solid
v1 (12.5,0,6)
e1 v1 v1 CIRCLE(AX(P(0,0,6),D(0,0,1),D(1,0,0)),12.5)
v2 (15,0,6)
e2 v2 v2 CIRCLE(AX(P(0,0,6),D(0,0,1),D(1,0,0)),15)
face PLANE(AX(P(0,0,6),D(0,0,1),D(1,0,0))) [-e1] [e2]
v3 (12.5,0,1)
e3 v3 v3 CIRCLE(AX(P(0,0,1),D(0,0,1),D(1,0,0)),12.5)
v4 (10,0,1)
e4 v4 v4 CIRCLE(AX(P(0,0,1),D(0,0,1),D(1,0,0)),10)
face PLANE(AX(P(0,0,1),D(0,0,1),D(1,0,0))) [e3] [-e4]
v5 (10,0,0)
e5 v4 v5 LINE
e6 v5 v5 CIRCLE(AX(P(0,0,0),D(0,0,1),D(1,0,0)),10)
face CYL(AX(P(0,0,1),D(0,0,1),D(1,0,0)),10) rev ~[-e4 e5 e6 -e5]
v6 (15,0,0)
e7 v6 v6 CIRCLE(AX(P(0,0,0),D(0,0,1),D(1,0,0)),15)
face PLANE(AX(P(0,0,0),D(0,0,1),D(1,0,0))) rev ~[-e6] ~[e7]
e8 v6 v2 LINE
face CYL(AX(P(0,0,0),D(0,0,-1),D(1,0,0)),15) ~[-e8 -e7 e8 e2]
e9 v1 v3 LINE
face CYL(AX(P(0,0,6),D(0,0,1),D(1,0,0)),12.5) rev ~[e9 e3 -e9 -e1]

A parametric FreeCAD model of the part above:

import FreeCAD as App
import Part
import Sketcher

V = App.Vector

doc = App.newDocument("Part")
params = doc.addObject("Spreadsheet::Sheet", "Params")
for row, (alias, value) in enumerate([
    ("sketch1_diameter", "30 mm"),
    ("pad1_length", "6 mm"),
    ("sketch2_diameter", "25 mm"),
    ("pocket1_length", "5 mm"),
    ("sketch3_diameter", "20 mm"),
], start=1):
    params.set(f"A{row}", alias)
    params.set(f"B{row}", "=" + value)
    params.setAlias(f"B{row}", alias)

body = doc.addObject("PartDesign::Body", "Body")

# Sketch on XY plane
sketch1 = body.newObject("Sketcher::SketchObject", "Sketch")
sketch1.AttachmentSupport = (doc.getObject("XY_Plane"), [""])
sketch1.MapMode = "FlatFace"
sketch1.addGeometry(Part.Circle(V(0, 0, 0), V(0, 0, 1), 15), False)
sketch1.addConstraint([
    Sketcher.Constraint("Coincident", 0, 3, -1, 1),
    Sketcher.Constraint("Diameter", 0, 30.0),
])
sketch1.setExpression("Constraints[1]", "Params.sketch1_diameter")
pad1 = body.newObject("PartDesign::Pad", "Pad")
pad1.Profile = sketch1
pad1.setExpression("Length", "Params.pad1_length")

# Sketch on XY plane
sketch2 = body.newObject("Sketcher::SketchObject", "Sketch001")
sketch2.AttachmentSupport = (doc.getObject("XY_Plane"), [""])
sketch2.MapMode = "FlatFace"
sketch2.AttachmentOffset = App.Placement(V(0, 0, 6), App.Rotation())
sketch2.addGeometry(Part.Circle(V(0, 0, 0), V(0, 0, 1), 12.5), False)
sketch2.addConstraint([
    Sketcher.Constraint("Coincident", 0, 3, -1, 1),
    Sketcher.Constraint("Diameter", 0, 25.0),
])
sketch2.setExpression("Constraints[1]", "Params.sketch2_diameter")
pocket1 = body.newObject("PartDesign::Pocket", "Pocket")
pocket1.Profile = sketch2
pocket1.setExpression("Length", "Params.pocket1_length")

# Sketch on XY plane
sketch3 = body.newObject("Sketcher::SketchObject", "Sketch002")
sketch3.AttachmentSupport = (doc.getObject("XY_Plane"), [""])
sketch3.MapMode = "FlatFace"
sketch3.AttachmentOffset = App.Placement(V(0, 0, 1), App.Rotation())
sketch3.addGeometry(Part.Circle(V(0, 0, 0), V(0, 0, 1), 10), False)
sketch3.addConstraint([
    Sketcher.Constraint("Coincident", 0, 3, -1, 1),
    Sketcher.Constraint("Diameter", 0, 20.0),
])
sketch3.setExpression("Constraints[1]", "Params.sketch3_diameter")
pocket2 = body.newObject("PartDesign::Pocket", "Pocket001")
pocket2.Profile = sketch3
pocket2.Type = "ThroughAll"

doc.recompute()
